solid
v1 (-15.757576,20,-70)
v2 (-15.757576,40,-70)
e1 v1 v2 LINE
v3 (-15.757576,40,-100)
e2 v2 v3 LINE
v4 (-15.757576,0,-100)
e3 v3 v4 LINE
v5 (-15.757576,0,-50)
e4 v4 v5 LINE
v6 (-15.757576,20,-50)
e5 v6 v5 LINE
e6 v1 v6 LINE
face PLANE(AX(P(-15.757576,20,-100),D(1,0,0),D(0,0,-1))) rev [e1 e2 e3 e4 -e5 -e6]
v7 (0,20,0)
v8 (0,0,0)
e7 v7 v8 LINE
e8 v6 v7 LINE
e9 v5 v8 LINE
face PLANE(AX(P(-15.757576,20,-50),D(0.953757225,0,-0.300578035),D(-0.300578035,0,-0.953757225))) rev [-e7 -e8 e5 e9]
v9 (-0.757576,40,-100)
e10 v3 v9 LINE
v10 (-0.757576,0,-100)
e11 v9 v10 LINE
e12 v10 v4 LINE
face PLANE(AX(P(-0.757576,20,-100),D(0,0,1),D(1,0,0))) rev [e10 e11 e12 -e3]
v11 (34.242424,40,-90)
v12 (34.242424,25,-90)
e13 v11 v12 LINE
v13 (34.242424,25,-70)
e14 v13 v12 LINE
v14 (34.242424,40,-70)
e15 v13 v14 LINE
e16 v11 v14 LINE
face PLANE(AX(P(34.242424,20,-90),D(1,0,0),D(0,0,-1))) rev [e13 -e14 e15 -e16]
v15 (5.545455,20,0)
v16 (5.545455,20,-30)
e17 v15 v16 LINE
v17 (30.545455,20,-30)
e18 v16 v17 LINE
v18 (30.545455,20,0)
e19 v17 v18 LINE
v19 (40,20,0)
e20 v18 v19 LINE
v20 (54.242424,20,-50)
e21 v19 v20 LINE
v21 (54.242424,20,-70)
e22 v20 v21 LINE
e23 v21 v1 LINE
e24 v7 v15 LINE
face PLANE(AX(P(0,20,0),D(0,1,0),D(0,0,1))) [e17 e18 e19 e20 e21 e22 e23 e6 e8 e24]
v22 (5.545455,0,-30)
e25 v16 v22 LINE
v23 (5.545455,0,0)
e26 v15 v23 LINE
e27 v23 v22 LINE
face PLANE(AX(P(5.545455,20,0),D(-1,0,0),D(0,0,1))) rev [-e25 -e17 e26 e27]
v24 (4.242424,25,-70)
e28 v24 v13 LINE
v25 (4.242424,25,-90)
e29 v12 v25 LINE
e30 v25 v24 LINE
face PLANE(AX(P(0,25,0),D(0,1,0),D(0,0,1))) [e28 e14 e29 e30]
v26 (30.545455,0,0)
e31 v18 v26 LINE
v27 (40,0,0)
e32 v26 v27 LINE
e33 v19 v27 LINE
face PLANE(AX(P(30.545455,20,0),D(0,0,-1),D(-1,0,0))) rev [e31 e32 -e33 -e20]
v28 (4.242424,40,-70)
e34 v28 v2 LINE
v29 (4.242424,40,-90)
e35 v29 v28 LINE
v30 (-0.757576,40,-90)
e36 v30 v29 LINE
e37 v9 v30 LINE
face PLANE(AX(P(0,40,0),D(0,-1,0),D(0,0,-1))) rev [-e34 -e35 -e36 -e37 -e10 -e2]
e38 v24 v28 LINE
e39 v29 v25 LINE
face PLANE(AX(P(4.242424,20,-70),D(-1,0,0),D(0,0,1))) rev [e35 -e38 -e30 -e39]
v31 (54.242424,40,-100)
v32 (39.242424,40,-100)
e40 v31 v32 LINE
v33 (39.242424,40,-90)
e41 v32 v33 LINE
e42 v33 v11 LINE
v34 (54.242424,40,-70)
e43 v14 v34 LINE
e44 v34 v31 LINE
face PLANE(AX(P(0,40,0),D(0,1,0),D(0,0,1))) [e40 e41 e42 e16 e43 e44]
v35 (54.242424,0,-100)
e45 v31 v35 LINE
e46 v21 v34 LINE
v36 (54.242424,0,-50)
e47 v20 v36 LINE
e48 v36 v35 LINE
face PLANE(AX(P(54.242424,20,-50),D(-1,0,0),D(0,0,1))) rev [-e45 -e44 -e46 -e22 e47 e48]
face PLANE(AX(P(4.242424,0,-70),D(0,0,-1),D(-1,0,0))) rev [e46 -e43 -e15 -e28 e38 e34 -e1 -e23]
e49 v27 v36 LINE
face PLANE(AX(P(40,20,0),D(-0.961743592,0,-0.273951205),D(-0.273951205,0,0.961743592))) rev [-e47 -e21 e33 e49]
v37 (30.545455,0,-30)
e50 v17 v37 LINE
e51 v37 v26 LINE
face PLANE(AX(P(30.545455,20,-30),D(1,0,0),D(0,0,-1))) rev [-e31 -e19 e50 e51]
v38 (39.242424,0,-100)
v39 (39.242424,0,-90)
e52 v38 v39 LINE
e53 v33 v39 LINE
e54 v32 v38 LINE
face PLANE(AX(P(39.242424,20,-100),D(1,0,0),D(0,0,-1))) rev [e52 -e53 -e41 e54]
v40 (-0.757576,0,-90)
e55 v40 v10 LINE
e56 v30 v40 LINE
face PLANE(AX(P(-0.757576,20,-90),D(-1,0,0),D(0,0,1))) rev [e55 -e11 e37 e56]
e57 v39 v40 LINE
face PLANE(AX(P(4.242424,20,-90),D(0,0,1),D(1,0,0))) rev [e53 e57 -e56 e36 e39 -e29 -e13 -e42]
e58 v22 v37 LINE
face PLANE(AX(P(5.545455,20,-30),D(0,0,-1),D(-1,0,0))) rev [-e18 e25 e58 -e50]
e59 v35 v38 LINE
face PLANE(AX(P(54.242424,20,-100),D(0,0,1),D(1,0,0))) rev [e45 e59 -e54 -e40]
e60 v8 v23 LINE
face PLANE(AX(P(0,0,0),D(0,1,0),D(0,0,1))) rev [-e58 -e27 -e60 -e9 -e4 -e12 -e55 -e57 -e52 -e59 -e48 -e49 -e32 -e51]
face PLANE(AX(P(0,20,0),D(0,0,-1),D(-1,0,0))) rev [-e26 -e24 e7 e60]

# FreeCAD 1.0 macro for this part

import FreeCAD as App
import Part
import Sketcher

V = App.Vector
Q = App.Units.Quantity

doc = App.newDocument("Part")
params = doc.addObject("Spreadsheet::Sheet", "Params")
for row, (alias, value) in enumerate([
    ("sketch1_width", "25 mm"),
    ("sketch1_width2", "15 mm"),
    ("sketch1_width3", "5 mm"),
    ("sketch1_width4", "30 mm"),
    ("sketch1_height", "50 mm"),
    ("pad1_length", "20 mm"),
    ("sketch2_width", "15 mm"),
    ("sketch2_width2", "20 mm"),
    ("sketch2_height", "30 mm"),
    ("pad2_length", "20 mm"),
    ("pad2_length2", "20 mm"),
    ("sketch3_width", "30 mm"),
    ("sketch3_height", "20 mm"),
    ("pad3_length", "20 mm"),
    ("sketch4_width", "30 mm"),
    ("sketch4_height", "20 mm"),
    ("pad4_length", "5 mm"),
], start=1):
    params.set(f"A{row}", alias)
    params.set(f"B{row}", "=" + value)
    params.setAlias(f"B{row}", alias)

body = doc.addObject("PartDesign::Body", "Body")

# Sketch on XZ plane
sketch1 = body.newObject("Sketcher::SketchObject", "Sketch")
sketch1.AttachmentSupport = (doc.getObject("XZ_Plane"), [""])
sketch1.MapMode = "FlatFace"
sketch1.addGeometry([
    Part.LineSegment(V(0, 0, 0), V(6, 0, 0)),  # 0
    Part.LineSegment(V(6, 0, 0), V(6, -30, 0)),  # 1
    Part.LineSegment(V(6, -30, 0), V(31, -30, 0)),  # 2
    Part.LineSegment(V(31, -30, 0), V(31, 0, 0)),  # 3
    Part.LineSegment(V(31, 0, 0), V(40, 0, 0)),  # 4
    Part.LineSegment(V(40, 0, 0), V(54, -50, 0)),  # 5
    Part.LineSegment(V(54, -50, 0), V(54, -100, 0)),  # 6
    Part.LineSegment(V(54, -100, 0), V(39, -100, 0)),  # 7
    Part.LineSegment(V(39, -100, 0), V(39, -90, 0)),  # 8
    Part.LineSegment(V(39, -90, 0), V(34, -90, 0)),  # 9
    Part.LineSegment(V(34, -90, 0), V(34, -70, 0)),  # 10
    Part.LineSegment(V(34, -70, 0), V(4, -70, 0)),  # 11
    Part.LineSegment(V(4, -70, 0), V(4, -90, 0)),  # 12
    Part.LineSegment(V(4, -90, 0), V(-1, -90, 0)),  # 13
    Part.LineSegment(V(-1, -90, 0), V(-1, -100, 0)),  # 14
    Part.LineSegment(V(-1, -100, 0), V(-16, -100, 0)),  # 15
    Part.LineSegment(V(-16, -100, 0), V(-16, -50, 0)),  # 16
    Part.LineSegment(V(-16, -50, 0), V(0, 0, 0)),  # 17
], False)
sketch1.addConstraint([
    Sketcher.Constraint("Coincident", 0, 2, 1, 1),
    Sketcher.Constraint("Coincident", 1, 2, 2, 1),
    Sketcher.Constraint("Coincident", 2, 2, 3, 1),
    Sketcher.Constraint("Coincident", 3, 2, 4, 1),
    Sketcher.Constraint("Coincident", 4, 2, 5, 1),
    Sketcher.Constraint("Coincident", 5, 2, 6, 1),
    Sketcher.Constraint("Coincident", 6, 2, 7, 1),
    Sketcher.Constraint("Coincident", 7, 2, 8, 1),
    Sketcher.Constraint("Coincident", 8, 2, 9, 1),
    Sketcher.Constraint("Coincident", 9, 2, 10, 1),
    Sketcher.Constraint("Coincident", 10, 2, 11, 1),
    Sketcher.Constraint("Coincident", 11, 2, 12, 1),
    Sketcher.Constraint("Coincident", 12, 2, 13, 1),
    Sketcher.Constraint("Coincident", 13, 2, 14, 1),
    Sketcher.Constraint("Coincident", 14, 2, 15, 1),
    Sketcher.Constraint("Coincident", 15, 2, 16, 1),
    Sketcher.Constraint("Coincident", 16, 2, 17, 1),
    Sketcher.Constraint("Coincident", 17, 2, 0, 1),
    Sketcher.Constraint("Horizontal", 0),
    Sketcher.Constraint("Vertical", 1),
    Sketcher.Constraint("Horizontal", 2),
    Sketcher.Constraint("Vertical", 3),
    Sketcher.Constraint("Horizontal", 4),
    Sketcher.Constraint("Vertical", 6),
    Sketcher.Constraint("Horizontal", 7),
    Sketcher.Constraint("Vertical", 8),
    Sketcher.Constraint("Horizontal", 9),
    Sketcher.Constraint("Vertical", 10),
    Sketcher.Constraint("Horizontal", 11),
    Sketcher.Constraint("Vertical", 12),
    Sketcher.Constraint("Horizontal", 13),
    Sketcher.Constraint("Vertical", 14),
    Sketcher.Constraint("Horizontal", 15),
    Sketcher.Constraint("Vertical", 16),
    Sketcher.Constraint("Coincident", 17, 2, -1, 1),
    Sketcher.Constraint("PointOnObject", 3, 2, -1),
    Sketcher.Constraint("Horizontal", 9, 2, 12, 2),
    Sketcher.Constraint("Horizontal", 7, 2, 14, 2),
    Sketcher.Constraint("Horizontal", 5, 2, 16, 2),
    Sketcher.Constraint("Equal", 9, 13),
    Sketcher.Constraint("Equal", 7, 15),
    Sketcher.Constraint("Equal", 11, 1),
    Sketcher.Constraint("DistanceX", 2, 1, 2, 2, Q("25 mm")),
    Sketcher.Constraint("DistanceX", 7, 2, 7, 1, Q("15 mm")),
    Sketcher.Constraint("DistanceX", 9, 2, 9, 1, Q("5 mm")),
    Sketcher.Constraint("DistanceX", 11, 2, 11, 1, Q("30 mm")),
    Sketcher.Constraint("DistanceY", 6, 2, 6, 1, Q("50 mm")),
    Sketcher.Constraint("DistanceY", 8, 1, 8, 2, Q("10 mm")),
    Sketcher.Constraint("DistanceY", 10, 1, 10, 2, Q("20 mm")),
    Sketcher.Constraint("DistanceX", -1, 1, 4, 2, Q("40 mm")),
    Sketcher.Constraint("DistanceY", 5, 2, -1, 1, Q("50 mm")),
    Sketcher.Constraint("Distance", 5, Q("51.988909 mm")),
    Sketcher.Constraint("DistanceX", 0, 1, 0, 2, Q("5.545455 mm")),
])
sketch1.setExpression("Constraints[42]", "Params.sketch1_width")
sketch1.setExpression("Constraints[43]", "Params.sketch1_width2")
sketch1.setExpression("Constraints[44]", "Params.sketch1_width3")
sketch1.setExpression("Constraints[45]", "Params.sketch1_width4")
sketch1.setExpression("Constraints[46]", "Params.sketch1_height")
pad1 = body.newObject("PartDesign::Pad", "Pad")
pad1.Profile = sketch1
pad1.setExpression("Length", "Params.pad1_length")
pad1.Reversed = True

# Sketch on XZ plane
sketch2 = body.newObject("Sketcher::SketchObject", "Sketch001")
sketch2.AttachmentSupport = (doc.getObject("XZ_Plane"), [""])
sketch2.MapMode = "FlatFace"
sketch2.AttachmentOffset = App.Placement(V(0, 0, -20), App.Rotation())
sketch2.addGeometry([
    Part.LineSegment(V(-1, -100, 0), V(-16, -100, 0)),  # 0
    Part.LineSegment(V(-16, -100, 0), V(-16, -70, 0)),  # 1
    Part.LineSegment(V(-16, -70, 0), V(4, -70, 0)),  # 2
    Part.LineSegment(V(4, -70, 0), V(4, -90, 0)),  # 3
    Part.LineSegment(V(4, -90, 0), V(-1, -90, 0)),  # 4
    Part.LineSegment(V(-1, -90, 0), V(-1, -100, 0)),  # 5
    Part.LineSegment(V(54, -100, 0), V(39, -100, 0)),  # 6
    Part.LineSegment(V(39, -100, 0), V(39, -90, 0)),  # 7
    Part.LineSegment(V(39, -90, 0), V(34, -90, 0)),  # 8
    Part.LineSegment(V(34, -90, 0), V(34, -70, 0)),  # 9
    Part.LineSegment(V(34, -70, 0), V(54, -70, 0)),  # 10
    Part.LineSegment(V(54, -70, 0), V(54, -100, 0)),  # 11
], False)
sketch2.addConstraint([
    Sketcher.Constraint("Coincident", 0, 2, 1, 1),
    Sketcher.Constraint("Coincident", 1, 2, 2, 1),
    Sketcher.Constraint("Coincident", 2, 2, 3, 1),
    Sketcher.Constraint("Coincident", 3, 2, 4, 1),
    Sketcher.Constraint("Coincident", 4, 2, 5, 1),
    Sketcher.Constraint("Coincident", 5, 2, 0, 1),
    Sketcher.Constraint("Coincident", 6, 2, 7, 1),
    Sketcher.Constraint("Coincident", 7, 2, 8, 1),
    Sketcher.Constraint("Coincident", 8, 2, 9, 1),
    Sketcher.Constraint("Coincident", 9, 2, 10, 1),
    Sketcher.Constraint("Coincident", 10, 2, 11, 1),
    Sketcher.Constraint("Coincident", 11, 2, 6, 1),
    Sketcher.Constraint("Horizontal", 0),
    Sketcher.Constraint("Vertical", 1),
    Sketcher.Constraint("Horizontal", 2),
    Sketcher.Constraint("Vertical", 3),
    Sketcher.Constraint("Horizontal", 4),
    Sketcher.Constraint("Vertical", 5),
    Sketcher.Constraint("Horizontal", 6),
    Sketcher.Constraint("Vertical", 7),
    Sketcher.Constraint("Horizontal", 8),
    Sketcher.Constraint("Vertical", 9),
    Sketcher.Constraint("Horizontal", 10),
    Sketcher.Constraint("Vertical", 11),
    Sketcher.Constraint("Horizontal", 5, 2, 6, 2),
    Sketcher.Constraint("Horizontal", 4, 2, 7, 2),
    Sketcher.Constraint("Horizontal", 2, 2, 9, 2),
    Sketcher.Constraint("Equal", 0, 6),
    Sketcher.Constraint("Equal", 4, 8),
    Sketcher.Constraint("Equal", 10, 3),
    Sketcher.Constraint("DistanceX", 0, 2, 0, 1, Q("15 mm")),
    Sketcher.Constraint("DistanceX", 2, 1, 2, 2, Q("20 mm")),
    Sketcher.Constraint("DistanceY", 1, 1, 1, 2, Q("30 mm")),
    Sketcher.Constraint("DistanceY", 0, 2, -1, 1, Q("100 mm")),
    Sketcher.Constraint("DistanceX", 3, 2, 6, 2, Q("35 mm")),
    Sketcher.Constraint("DistanceX", 0, 2, -1, 1, Q("15.757576 mm")),
])
sketch2.setExpression("Constraints[30]", "Params.sketch2_width")
sketch2.setExpression("Constraints[31]", "Params.sketch2_width2")
sketch2.setExpression("Constraints[32]", "Params.sketch2_height")
pad2 = body.newObject("PartDesign::Pad", "Pad001")
pad2.Profile = sketch2
pad2.Type = "TwoLengths"
pad2.setExpression("Length", "Params.pad2_length")
pad2.setExpression("Length2", "Params.pad2_length2")
pad2.Reversed = True

# Sketch on XZ plane
sketch3 = body.newObject("Sketcher::SketchObject", "Sketch002")
sketch3.AttachmentSupport = (doc.getObject("XZ_Plane"), [""])
sketch3.MapMode = "FlatFace"
sketch3.AttachmentOffset = App.Placement(V(0, 0, -20), App.Rotation())
sketch3.addGeometry([
    Part.LineSegment(V(4, -90, 0), V(4, -70, 0)),
    Part.LineSegment(V(4, -70, 0), V(34, -70, 0)),
    Part.LineSegment(V(34, -70, 0), V(34, -90, 0)),
    Part.LineSegment(V(34, -90, 0), V(4, -90, 0)),
], False)
sketch3.addConstraint([
    Sketcher.Constraint("Coincident", 0, 2, 1, 1),
    Sketcher.Constraint("Coincident", 1, 2, 2, 1),
    Sketcher.Constraint("Coincident", 2, 2, 3, 1),
    Sketcher.Constraint("Coincident", 3, 2, 0, 1),
    Sketcher.Constraint("Vertical", 0),
    Sketcher.Constraint("Horizontal", 1),
    Sketcher.Constraint("Vertical", 2),
    Sketcher.Constraint("Horizontal", 3),
    Sketcher.Constraint("DistanceX", 1, 1, 1, 2, Q("30 mm")),
    Sketcher.Constraint("DistanceY", 0, 1, 0, 2, Q("20 mm")),
    Sketcher.Constraint("DistanceY", 0, 2, -1, 1, Q("70 mm")),
    Sketcher.Constraint("DistanceX", -1, 1, 0, 2, Q("4.242424 mm")),
])
sketch3.setExpression("Constraints[8]", "Params.sketch3_width")
sketch3.setExpression("Constraints[9]", "Params.sketch3_height")
pad3 = body.newObject("PartDesign::Pad", "Pad002")
pad3.Profile = sketch3
pad3.setExpression("Length", "Params.pad3_length")

# Sketch on XZ plane
sketch4 = body.newObject("Sketcher::SketchObject", "Sketch003")
sketch4.AttachmentSupport = (doc.getObject("XZ_Plane"), [""])
sketch4.MapMode = "FlatFace"
sketch4.AttachmentOffset = App.Placement(V(0, 0, -20), App.Rotation())
sketch4.addGeometry([
    Part.LineSegment(V(4, -90, 0), V(4, -70, 0)),
    Part.LineSegment(V(4, -70, 0), V(34, -70, 0)),
    Part.LineSegment(V(34, -70, 0), V(34, -90, 0)),
    Part.LineSegment(V(34, -90, 0), V(4, -90, 0)),
], False)
sketch4.addConstraint([
    Sketcher.Constraint("Coincident", 0, 2, 1, 1),
    Sketcher.Constraint("Coincident", 1, 2, 2, 1),
    Sketcher.Constraint("Coincident", 2, 2, 3, 1),
    Sketcher.Constraint("Coincident", 3, 2, 0, 1),
    Sketcher.Constraint("Vertical", 0),
    Sketcher.Constraint("Horizontal", 1),
    Sketcher.Constraint("Vertical", 2),
    Sketcher.Constraint("Horizontal", 3),
    Sketcher.Constraint("DistanceX", 1, 1, 1, 2, Q("30 mm")),
    Sketcher.Constraint("DistanceY", 0, 1, 0, 2, Q("20 mm")),
    Sketcher.Constraint("DistanceY", 0, 2, -1, 1, Q("70 mm")),
    Sketcher.Constraint("DistanceX", -1, 1, 0, 2, Q("4.242424 mm")),
])
sketch4.setExpression("Constraints[8]", "Params.sketch4_width")
sketch4.setExpression("Constraints[9]", "Params.sketch4_height")
pad4 = body.newObject("PartDesign::Pad", "Pad003")
pad4.Profile = sketch4
pad4.setExpression("Length", "Params.pad4_length")
pad4.Reversed = True

doc.recompute()
